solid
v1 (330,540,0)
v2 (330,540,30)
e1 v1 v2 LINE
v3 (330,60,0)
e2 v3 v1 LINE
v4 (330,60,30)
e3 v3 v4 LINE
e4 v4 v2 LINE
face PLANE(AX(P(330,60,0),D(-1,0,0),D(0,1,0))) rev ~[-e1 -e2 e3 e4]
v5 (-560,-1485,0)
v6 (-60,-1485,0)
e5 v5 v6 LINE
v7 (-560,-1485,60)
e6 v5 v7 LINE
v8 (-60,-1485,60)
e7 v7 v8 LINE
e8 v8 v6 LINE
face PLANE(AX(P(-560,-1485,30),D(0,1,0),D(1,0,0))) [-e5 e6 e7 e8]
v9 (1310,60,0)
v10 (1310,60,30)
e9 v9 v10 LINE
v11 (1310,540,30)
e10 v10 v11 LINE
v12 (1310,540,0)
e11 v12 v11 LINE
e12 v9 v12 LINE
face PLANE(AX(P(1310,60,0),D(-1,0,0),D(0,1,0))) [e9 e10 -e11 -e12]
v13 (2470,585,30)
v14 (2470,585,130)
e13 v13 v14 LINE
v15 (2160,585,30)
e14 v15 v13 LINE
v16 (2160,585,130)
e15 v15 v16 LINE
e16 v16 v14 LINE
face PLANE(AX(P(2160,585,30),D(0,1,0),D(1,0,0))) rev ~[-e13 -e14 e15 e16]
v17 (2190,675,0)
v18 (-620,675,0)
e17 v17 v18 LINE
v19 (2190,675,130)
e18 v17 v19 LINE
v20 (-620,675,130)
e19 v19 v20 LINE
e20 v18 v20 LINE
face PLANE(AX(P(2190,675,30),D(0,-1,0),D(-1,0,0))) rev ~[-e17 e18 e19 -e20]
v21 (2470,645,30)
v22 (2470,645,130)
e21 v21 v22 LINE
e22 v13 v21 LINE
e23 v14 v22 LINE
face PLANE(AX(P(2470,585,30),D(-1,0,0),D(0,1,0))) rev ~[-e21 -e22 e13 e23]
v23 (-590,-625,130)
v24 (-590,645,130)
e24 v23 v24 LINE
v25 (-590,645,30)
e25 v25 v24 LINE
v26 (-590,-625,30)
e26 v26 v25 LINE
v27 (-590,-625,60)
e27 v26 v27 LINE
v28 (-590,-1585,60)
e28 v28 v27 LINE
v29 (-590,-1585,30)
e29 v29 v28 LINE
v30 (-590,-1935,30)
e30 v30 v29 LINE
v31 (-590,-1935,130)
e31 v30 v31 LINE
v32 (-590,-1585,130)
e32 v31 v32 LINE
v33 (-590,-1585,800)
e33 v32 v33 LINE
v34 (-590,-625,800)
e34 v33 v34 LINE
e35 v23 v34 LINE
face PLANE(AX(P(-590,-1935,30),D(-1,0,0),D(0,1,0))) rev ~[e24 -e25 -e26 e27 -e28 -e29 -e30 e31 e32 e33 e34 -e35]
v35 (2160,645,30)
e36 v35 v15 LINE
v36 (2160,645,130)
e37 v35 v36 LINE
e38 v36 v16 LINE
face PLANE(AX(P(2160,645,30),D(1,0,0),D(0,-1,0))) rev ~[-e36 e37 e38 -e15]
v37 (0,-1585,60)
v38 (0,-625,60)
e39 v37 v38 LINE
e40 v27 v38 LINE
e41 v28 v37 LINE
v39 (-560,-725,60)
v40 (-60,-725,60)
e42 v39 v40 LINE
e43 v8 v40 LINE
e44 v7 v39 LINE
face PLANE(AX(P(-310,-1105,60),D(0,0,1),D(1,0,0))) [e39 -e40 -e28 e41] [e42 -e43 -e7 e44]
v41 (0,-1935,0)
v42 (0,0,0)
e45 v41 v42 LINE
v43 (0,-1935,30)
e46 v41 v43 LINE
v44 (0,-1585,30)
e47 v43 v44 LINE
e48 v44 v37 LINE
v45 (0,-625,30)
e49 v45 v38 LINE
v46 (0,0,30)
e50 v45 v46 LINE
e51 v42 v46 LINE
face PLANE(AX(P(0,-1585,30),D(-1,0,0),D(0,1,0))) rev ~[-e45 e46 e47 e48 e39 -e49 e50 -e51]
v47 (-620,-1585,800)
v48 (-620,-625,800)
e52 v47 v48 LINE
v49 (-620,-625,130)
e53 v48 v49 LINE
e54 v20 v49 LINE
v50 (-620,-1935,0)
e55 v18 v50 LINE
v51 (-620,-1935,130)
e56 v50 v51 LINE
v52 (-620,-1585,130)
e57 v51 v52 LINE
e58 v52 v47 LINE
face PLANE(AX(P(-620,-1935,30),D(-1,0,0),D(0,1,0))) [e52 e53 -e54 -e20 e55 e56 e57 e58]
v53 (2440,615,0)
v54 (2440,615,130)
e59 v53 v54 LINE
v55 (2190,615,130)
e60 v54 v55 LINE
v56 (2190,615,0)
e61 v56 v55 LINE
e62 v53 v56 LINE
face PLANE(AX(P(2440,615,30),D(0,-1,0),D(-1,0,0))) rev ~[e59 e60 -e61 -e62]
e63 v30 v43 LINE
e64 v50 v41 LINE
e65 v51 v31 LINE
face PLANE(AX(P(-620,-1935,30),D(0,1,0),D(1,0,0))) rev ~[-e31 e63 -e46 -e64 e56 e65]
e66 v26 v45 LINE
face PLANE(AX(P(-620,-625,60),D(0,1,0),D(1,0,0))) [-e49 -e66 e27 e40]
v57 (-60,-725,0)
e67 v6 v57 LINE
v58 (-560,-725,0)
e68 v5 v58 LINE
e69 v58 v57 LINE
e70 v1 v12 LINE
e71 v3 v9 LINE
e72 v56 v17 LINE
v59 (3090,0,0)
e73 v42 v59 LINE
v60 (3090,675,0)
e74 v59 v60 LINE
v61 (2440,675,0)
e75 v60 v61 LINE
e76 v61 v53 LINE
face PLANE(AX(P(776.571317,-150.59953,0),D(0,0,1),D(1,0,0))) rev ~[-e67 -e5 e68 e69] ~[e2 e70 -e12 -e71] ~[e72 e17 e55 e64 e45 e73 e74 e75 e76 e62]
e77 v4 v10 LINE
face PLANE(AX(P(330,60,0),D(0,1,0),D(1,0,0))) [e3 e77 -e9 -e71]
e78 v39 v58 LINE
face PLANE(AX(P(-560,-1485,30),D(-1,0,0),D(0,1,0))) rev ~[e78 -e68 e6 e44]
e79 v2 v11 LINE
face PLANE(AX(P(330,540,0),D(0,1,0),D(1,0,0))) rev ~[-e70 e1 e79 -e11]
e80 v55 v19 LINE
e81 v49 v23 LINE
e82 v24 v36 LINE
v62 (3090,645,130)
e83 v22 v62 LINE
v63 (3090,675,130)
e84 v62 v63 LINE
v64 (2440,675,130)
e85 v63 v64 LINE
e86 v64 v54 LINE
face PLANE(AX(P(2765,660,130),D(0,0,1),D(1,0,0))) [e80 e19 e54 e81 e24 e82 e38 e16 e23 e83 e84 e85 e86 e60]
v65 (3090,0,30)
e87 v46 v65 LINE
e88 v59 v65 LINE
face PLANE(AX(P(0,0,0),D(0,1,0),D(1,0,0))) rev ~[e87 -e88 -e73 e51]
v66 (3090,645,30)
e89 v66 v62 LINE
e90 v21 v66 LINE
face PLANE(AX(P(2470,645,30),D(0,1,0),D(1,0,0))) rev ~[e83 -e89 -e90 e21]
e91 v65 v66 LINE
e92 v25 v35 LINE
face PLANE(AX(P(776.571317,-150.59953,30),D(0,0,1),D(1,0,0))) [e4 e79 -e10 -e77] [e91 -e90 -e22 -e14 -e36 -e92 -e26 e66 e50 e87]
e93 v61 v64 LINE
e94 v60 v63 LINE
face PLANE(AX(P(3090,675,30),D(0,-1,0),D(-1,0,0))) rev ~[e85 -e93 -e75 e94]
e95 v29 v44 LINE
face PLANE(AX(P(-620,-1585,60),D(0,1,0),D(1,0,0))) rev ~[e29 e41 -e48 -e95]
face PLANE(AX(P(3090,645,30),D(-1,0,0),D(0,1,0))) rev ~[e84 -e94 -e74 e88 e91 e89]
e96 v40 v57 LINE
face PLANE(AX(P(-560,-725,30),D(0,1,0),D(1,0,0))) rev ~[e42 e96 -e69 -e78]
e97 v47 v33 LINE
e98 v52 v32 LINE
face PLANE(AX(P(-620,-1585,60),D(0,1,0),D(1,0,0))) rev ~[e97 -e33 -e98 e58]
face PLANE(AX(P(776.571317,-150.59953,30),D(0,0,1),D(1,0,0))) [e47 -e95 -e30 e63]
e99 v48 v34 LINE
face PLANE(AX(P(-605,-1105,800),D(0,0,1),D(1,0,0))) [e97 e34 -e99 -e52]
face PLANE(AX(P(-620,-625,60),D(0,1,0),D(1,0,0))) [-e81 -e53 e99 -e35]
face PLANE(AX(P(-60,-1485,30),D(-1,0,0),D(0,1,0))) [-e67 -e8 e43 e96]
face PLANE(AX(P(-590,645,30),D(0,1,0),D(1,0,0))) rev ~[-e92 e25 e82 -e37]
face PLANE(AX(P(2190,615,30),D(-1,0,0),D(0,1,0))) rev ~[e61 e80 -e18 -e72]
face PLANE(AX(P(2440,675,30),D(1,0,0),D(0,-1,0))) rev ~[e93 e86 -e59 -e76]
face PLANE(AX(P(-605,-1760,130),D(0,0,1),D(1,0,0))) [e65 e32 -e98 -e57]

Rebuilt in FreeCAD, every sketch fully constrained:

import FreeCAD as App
import Part
import Sketcher
from FreeCAD import Vector
Q = App.Units.Quantity

doc = App.newDocument("Part")
body = doc.addObject("PartDesign::Body", "Body")

# Sketch on XY plane
sketch1 = doc.addObject("Sketcher::SketchObject", "Sketch")
body.addObject(sketch1)
sketch1.AttachmentSupport = (doc.XY_Plane, [""])
sketch1.MapMode = "FlatFace"
sketch1.addGeometry(Part.LineSegment(Vector(0, -1935, 0), Vector(0, 0, 0)), False)
sketch1.addGeometry(Part.LineSegment(Vector(0, 0, 0), Vector(3090, 0, 0)), False)
sketch1.addGeometry(Part.LineSegment(Vector(3090, 0, 0), Vector(3090, 675, 0)), False)
sketch1.addGeometry(Part.LineSegment(Vector(3090, 675, 0), Vector(2440, 675, 0)), False)
sketch1.addGeometry(Part.LineSegment(Vector(2440, 675, 0), Vector(2440, 615, 0)), False)
sketch1.addGeometry(Part.LineSegment(Vector(2440, 615, 0), Vector(2190, 615, 0)), False)
sketch1.addGeometry(Part.LineSegment(Vector(2190, 615, 0), Vector(2190, 675, 0)), False)
sketch1.addGeometry(Part.LineSegment(Vector(2190, 675, 0), Vector(-620, 675, 0)), False)
sketch1.addGeometry(Part.LineSegment(Vector(-620, 675, 0), Vector(-620, -1935, 0)), False)
sketch1.addGeometry(Part.LineSegment(Vector(-620, -1935, 0), Vector(0, -1935, 0)), False)
sketch1.addGeometry(Part.LineSegment(Vector(-60, -1485, 0), Vector(-560, -1485, 0)), False)
sketch1.addGeometry(Part.LineSegment(Vector(-560, -1485, 0), Vector(-560, -725, 0)), False)
sketch1.addGeometry(Part.LineSegment(Vector(-560, -725, 0), Vector(-60, -725, 0)), False)
sketch1.addGeometry(Part.LineSegment(Vector(-60, -725, 0), Vector(-60, -1485, 0)), False)
sketch1.addGeometry(Part.LineSegment(Vector(1310, 60, 0), Vector(330, 60, 0)), False)
sketch1.addGeometry(Part.LineSegment(Vector(330, 60, 0), Vector(330, 540, 0)), False)
sketch1.addGeometry(Part.LineSegment(Vector(330, 540, 0), Vector(1310, 540, 0)), False)
sketch1.addGeometry(Part.LineSegment(Vector(1310, 540, 0), Vector(1310, 60, 0)), False)
sketch1.addConstraint(Sketcher.Constraint("Coincident", 0, 2, 1, 1))
sketch1.addConstraint(Sketcher.Constraint("Coincident", 1, 2, 2, 1))
sketch1.addConstraint(Sketcher.Constraint("Coincident", 2, 2, 3, 1))
sketch1.addConstraint(Sketcher.Constraint("Coincident", 3, 2, 4, 1))
sketch1.addConstraint(Sketcher.Constraint("Coincident", 4, 2, 5, 1))
sketch1.addConstraint(Sketcher.Constraint("Coincident", 5, 2, 6, 1))
sketch1.addConstraint(Sketcher.Constraint("Coincident", 6, 2, 7, 1))
sketch1.addConstraint(Sketcher.Constraint("Coincident", 7, 2, 8, 1))
sketch1.addConstraint(Sketcher.Constraint("Coincident", 8, 2, 9, 1))
sketch1.addConstraint(Sketcher.Constraint("Coincident", 9, 2, 0, 1))
sketch1.addConstraint(Sketcher.Constraint("Coincident", 10, 2, 11, 1))
sketch1.addConstraint(Sketcher.Constraint("Coincident", 11, 2, 12, 1))
sketch1.addConstraint(Sketcher.Constraint("Coincident", 12, 2, 13, 1))
sketch1.addConstraint(Sketcher.Constraint("Coincident", 13, 2, 10, 1))
sketch1.addConstraint(Sketcher.Constraint("Coincident", 14, 2, 15, 1))
sketch1.addConstraint(Sketcher.Constraint("Coincident", 15, 2, 16, 1))
sketch1.addConstraint(Sketcher.Constraint("Coincident", 16, 2, 17, 1))
sketch1.addConstraint(Sketcher.Constraint("Coincident", 17, 2, 14, 1))
sketch1.addConstraint(Sketcher.Constraint("Vertical", 0))
sketch1.addConstraint(Sketcher.Constraint("Horizontal", 1))
sketch1.addConstraint(Sketcher.Constraint("Vertical", 2))
sketch1.addConstraint(Sketcher.Constraint("Horizontal", 3))
sketch1.addConstraint(Sketcher.Constraint("Vertical", 4))
sketch1.addConstraint(Sketcher.Constraint("Horizontal", 5))
sketch1.addConstraint(Sketcher.Constraint("Vertical", 6))
sketch1.addConstraint(Sketcher.Constraint("Horizontal", 7))
sketch1.addConstraint(Sketcher.Constraint("Vertical", 8))
sketch1.addConstraint(Sketcher.Constraint("Horizontal", 9))
sketch1.addConstraint(Sketcher.Constraint("Horizontal", 10))
sketch1.addConstraint(Sketcher.Constraint("Vertical", 11))
sketch1.addConstraint(Sketcher.Constraint("Horizontal", 12))
sketch1.addConstraint(Sketcher.Constraint("Vertical", 13))
sketch1.addConstraint(Sketcher.Constraint("Horizontal", 14))
sketch1.addConstraint(Sketcher.Constraint("Vertical", 15))
sketch1.addConstraint(Sketcher.Constraint("Horizontal", 16))
sketch1.addConstraint(Sketcher.Constraint("Vertical", 17))
sketch1.addConstraint(Sketcher.Constraint("Coincident", 0, 2, -1, 1))
sketch1.addConstraint(Sketcher.Constraint("Horizontal", 3, 2, 6, 2))
sketch1.addConstraint(Sketcher.Constraint("DistanceX", 1, 1, 1, 2, Q("3090 mm")))
sketch1.addConstraint(Sketcher.Constraint("DistanceX", 3, 2, 3, 1, Q("650 mm")))
sketch1.addConstraint(Sketcher.Constraint("DistanceX", 5, 2, 5, 1, Q("250 mm")))
sketch1.addConstraint(Sketcher.Constraint("DistanceX", 7, 2, 7, 1, Q("2810 mm")))
sketch1.addConstraint(Sketcher.Constraint("DistanceX", 10, 2, 10, 1, Q("500 mm")))
sketch1.addConstraint(Sketcher.Constraint("DistanceX", 14, 2, 14, 1, Q("980 mm")))
sketch1.addConstraint(Sketcher.Constraint("DistanceY", 0, 1, 0, 2, Q("1935 mm")))
sketch1.addConstraint(Sketcher.Constraint("DistanceY", 2, 1, 2, 2, Q("675 mm")))
sketch1.addConstraint(Sketcher.Constraint("DistanceY", 4, 2, 4, 1, Q("60 mm")))
sketch1.addConstraint(Sketcher.Constraint("DistanceY", 11, 1, 11, 2, Q("760 mm")))
sketch1.addConstraint(Sketcher.Constraint("DistanceY", 15, 1, 15, 2, Q("480 mm")))
sketch1.addConstraint(Sketcher.Constraint("DistanceX", 10, 2, -1, 1, Q("560 mm")))
sketch1.addConstraint(Sketcher.Constraint("DistanceY", 10, 2, -1, 1, Q("1485 mm")))
sketch1.addConstraint(Sketcher.Constraint("DistanceX", -1, 1, 14, 2, Q("330 mm")))
sketch1.addConstraint(Sketcher.Constraint("DistanceY", -1, 1, 14, 2, Q("60 mm")))
pad1 = doc.addObject("PartDesign::Pad", "Pad")
body.addObject(pad1)
pad1.Profile = sketch1
pad1.Length = 30

# Sketch on XY plane
sketch2 = doc.addObject("Sketcher::SketchObject", "Sketch001")
body.addObject(sketch2)
sketch2.AttachmentSupport = (doc.XY_Plane, [""])
sketch2.MapMode = "FlatFace"
sketch2.AttachmentOffset = App.Placement(Vector(0, 0, 30), App.Rotation())
sketch2.addGeometry(Part.LineSegment(Vector(-620, -625, 0), Vector(-620, -1585, 0)), False)
sketch2.addGeometry(Part.LineSegment(Vector(-620, -1585, 0), Vector(0, -1585, 0)), False)
sketch2.addGeometry(Part.LineSegment(Vector(0, -1585, 0), Vector(0, -625, 0)), False)
sketch2.addGeometry(Part.LineSegment(Vector(0, -625, 0), Vector(-620, -625, 0)), False)
sketch2.addGeometry(Part.LineSegment(Vector(-60, -1485, 0), Vector(-560, -1485, 0)), False)
sketch2.addGeometry(Part.LineSegment(Vector(-560, -1485, 0), Vector(-560, -725, 0)), False)
sketch2.addGeometry(Part.LineSegment(Vector(-560, -725, 0), Vector(-60, -725, 0)), False)
sketch2.addGeometry(Part.LineSegment(Vector(-60, -725, 0), Vector(-60, -1485, 0)), False)
sketch2.addConstraint(Sketcher.Constraint("Coincident", 0, 2, 1, 1))
sketch2.addConstraint(Sketcher.Constraint("Coincident", 1, 2, 2, 1))
sketch2.addConstraint(Sketcher.Constraint("Coincident", 2, 2, 3, 1))
sketch2.addConstraint(Sketcher.Constraint("Coincident", 3, 2, 0, 1))
sketch2.addConstraint(Sketcher.Constraint("Coincident", 4, 2, 5, 1))
sketch2.addConstraint(Sketcher.Constraint("Coincident", 5, 2, 6, 1))
sketch2.addConstraint(Sketcher.Constraint("Coincident", 6, 2, 7, 1))
sketch2.addConstraint(Sketcher.Constraint("Coincident", 7, 2, 4, 1))
sketch2.addConstraint(Sketcher.Constraint("Vertical", 0))
sketch2.addConstraint(Sketcher.Constraint("Horizontal", 1))
sketch2.addConstraint(Sketcher.Constraint("Vertical", 2))
sketch2.addConstraint(Sketcher.Constraint("Horizontal", 3))
sketch2.addConstraint(Sketcher.Constraint("Horizontal", 4))
sketch2.addConstraint(Sketcher.Constraint("Vertical", 5))
sketch2.addConstraint(Sketcher.Constraint("Horizontal", 6))
sketch2.addConstraint(Sketcher.Constraint("Vertical", 7))
sketch2.addConstraint(Sketcher.Constraint("PointOnObject", 1, 2, -2))
sketch2.addConstraint(Sketcher.Constraint("DistanceX", 1, 1, 1, 2, Q("620 mm")))
sketch2.addConstraint(Sketcher.Constraint("DistanceX", 4, 2, 4, 1, Q("500 mm")))
sketch2.addConstraint(Sketcher.Constraint("DistanceY", 0, 2, 0, 1, Q("960 mm")))
sketch2.addConstraint(Sketcher.Constraint("DistanceY", 5, 1, 5, 2, Q("760 mm")))
sketch2.addConstraint(Sketcher.Constraint("DistanceY", 0, 2, -1, 1, Q("1585 mm")))
sketch2.addConstraint(Sketcher.Constraint("DistanceX", 4, 2, -1, 1, Q("560 mm")))
sketch2.addConstraint(Sketcher.Constraint("DistanceY", 4, 2, -1, 1, Q("1485 mm")))
pad2 = doc.addObject("PartDesign::Pad", "Pad001")
body.addObject(pad2)
pad2.Profile = sketch2
pad2.Length = 30

# Sketch on XY plane
sketch3 = doc.addObject("Sketcher::SketchObject", "Sketch002")
body.addObject(sketch3)
sketch3.AttachmentSupport = (doc.XY_Plane, [""])
sketch3.MapMode = "FlatFace"
sketch3.AttachmentOffset = App.Placement(Vector(0, 0, 60), App.Rotation())
sketch3.addGeometry(Part.LineSegment(Vector(-620, -625, 0), Vector(-620, -1585, 0)), False)
sketch3.addGeometry(Part.LineSegment(Vector(-620, -1585, 0), Vector(-590, -1585, 0)), False)
sketch3.addGeometry(Part.LineSegment(Vector(-590, -1585, 0), Vector(-590, -625, 0)), False)
sketch3.addGeometry(Part.LineSegment(Vector(-590, -625, 0), Vector(-620, -625, 0)), False)
sketch3.addConstraint(Sketcher.Constraint("Coincident", 0, 2, 1, 1))
sketch3.addConstraint(Sketcher.Constraint("Coincident", 1, 2, 2, 1))
sketch3.addConstraint(Sketcher.Constraint("Coincident", 2, 2, 3, 1))
sketch3.addConstraint(Sketcher.Constraint("Coincident", 3, 2, 0, 1))
sketch3.addConstraint(Sketcher.Constraint("Vertical", 0))
sketch3.addConstraint(Sketcher.Constraint("Horizontal", 1))
sketch3.addConstraint(Sketcher.Constraint("Vertical", 2))
sketch3.addConstraint(Sketcher.Constraint("Horizontal", 3))
sketch3.addConstraint(Sketcher.Constraint("DistanceX", 1, 1, 1, 2, Q("30 mm")))
sketch3.addConstraint(Sketcher.Constraint("DistanceY", 0, 2, 0, 1, Q("960 mm")))
sketch3.addConstraint(Sketcher.Constraint("DistanceX", 0, 2, -1, 1, Q("620 mm")))
sketch3.addConstraint(Sketcher.Constraint("DistanceY", 0, 2, -1, 1, Q("1585 mm")))
pad3 = doc.addObject("PartDesign::Pad", "Pad002")
body.addObject(pad3)
pad3.Profile = sketch3
pad3.Length = 740

# Sketch on XY plane
sketch4 = doc.addObject("Sketcher::SketchObject", "Sketch003")
body.addObject(sketch4)
sketch4.AttachmentSupport = (doc.XY_Plane, [""])
sketch4.MapMode = "FlatFace"
sketch4.AttachmentOffset = App.Placement(Vector(0, 0, 30), App.Rotation())
sketch4.addGeometry(Part.LineSegment(Vector(3090, 645, 0), Vector(3090, 675, 0)), False)
sketch4.addGeometry(Part.LineSegment(Vector(3090, 675, 0), Vector(2440, 675, 0)), False)
sketch4.addGeometry(Part.LineSegment(Vector(2440, 675, 0), Vector(2440, 615, 0)), False)
sketch4.addGeometry(Part.LineSegment(Vector(2440, 615, 0), Vector(2190, 615, 0)), False)
sketch4.addGeometry(Part.LineSegment(Vector(2190, 615, 0), Vector(2190, 675, 0)), False)
sketch4.addGeometry(Part.LineSegment(Vector(2190, 675, 0), Vector(-620, 675, 0)), False)
sketch4.addGeometry(Part.LineSegment(Vector(-620, 675, 0), Vector(-620, -625, 0)), False)
sketch4.addGeometry(Part.LineSegment(Vector(-620, -625, 0), Vector(-590, -625, 0)), False)
sketch4.addGeometry(Part.LineSegment(Vector(-590, -625, 0), Vector(-590, 645, 0)), False)
sketch4.addGeometry(Part.LineSegment(Vector(-590, 645, 0), Vector(2160, 645, 0)), False)
sketch4.addGeometry(Part.LineSegment(Vector(2160, 645, 0), Vector(2160, 585, 0)), False)
sketch4.addGeometry(Part.LineSegment(Vector(2160, 585, 0), Vector(2470, 585, 0)), False)
sketch4.addGeometry(Part.LineSegment(Vector(2470, 585, 0), Vector(2470, 645, 0)), False)
sketch4.addGeometry(Part.LineSegment(Vector(2470, 645, 0), Vector(3090, 645, 0)), False)
sketch4.addConstraint(Sketcher.Constraint("Coincident", 0, 2, 1, 1))
sketch4.addConstraint(Sketcher.Constraint("Coincident", 1, 2, 2, 1))
sketch4.addConstraint(Sketcher.Constraint("Coincident", 2, 2, 3, 1))
sketch4.addConstraint(Sketcher.Constraint("Coincident", 3, 2, 4, 1))
sketch4.addConstraint(Sketcher.Constraint("Coincident", 4, 2, 5, 1))
sketch4.addConstraint(Sketcher.Constraint("Coincident", 5, 2, 6, 1))
sketch4.addConstraint(Sketcher.Constraint("Coincident", 6, 2, 7, 1))
sketch4.addConstraint(Sketcher.Constraint("Coincident", 7, 2, 8, 1))
sketch4.addConstraint(Sketcher.Constraint("Coincident", 8, 2, 9, 1))
sketch4.addConstraint(Sketcher.Constraint("Coincident", 9, 2, 10, 1))
sketch4.addConstraint(Sketcher.Constraint("Coincident", 10, 2, 11, 1))
sketch4.addConstraint(Sketcher.Constraint("Coincident", 11, 2, 12, 1))
sketch4.addConstraint(Sketcher.Constraint("Coincident", 12, 2, 13, 1))
sketch4.addConstraint(Sketcher.Constraint("Coincident", 13, 2, 0, 1))
sketch4.addConstraint(Sketcher.Constraint("Vertical", 0))
sketch4.addConstraint(Sketcher.Constraint("Horizontal", 1))
sketch4.addConstraint(Sketcher.Constraint("Vertical", 2))
sketch4.addConstraint(Sketcher.Constraint("Horizontal", 3))
sketch4.addConstraint(Sketcher.Constraint("Vertical", 4))
sketch4.addConstraint(Sketcher.Constraint("Horizontal", 5))
sketch4.addConstraint(Sketcher.Constraint("Vertical", 6))
sketch4.addConstraint(Sketcher.Constraint("Horizontal", 7))
sketch4.addConstraint(Sketcher.Constraint("Vertical", 8))
sketch4.addConstraint(Sketcher.Constraint("Horizontal", 9))
sketch4.addConstraint(Sketcher.Constraint("Vertical", 10))
sketch4.addConstraint(Sketcher.Constraint("Horizontal", 11))
sketch4.addConstraint(Sketcher.Constraint("Vertical", 12))
sketch4.addConstraint(Sketcher.Constraint("Horizontal", 13))
sketch4.addConstraint(Sketcher.Constraint("Horizontal", 1, 2, 4, 2))
sketch4.addConstraint(Sketcher.Constraint("Horizontal", 9, 2, 12, 2))
sketch4.addConstraint(Sketcher.Constraint("Equal", 7, 0))
sketch4.addConstraint(Sketcher.Constraint("Equal", 4, 10))
sketch4.addConstraint(Sketcher.Constraint("DistanceX", 1, 2, 1, 1, Q("650 mm")))
sketch4.addConstraint(Sketcher.Constraint("DistanceX", 3, 2, 3, 1, Q("250 mm")))
sketch4.addConstraint(Sketcher.Constraint("DistanceX", 5, 2, 5, 1, Q("2810 mm")))
sketch4.addConstraint(Sketcher.Constraint("DistanceX", 7, 1, 7, 2, Q("30 mm")))
sketch4.addConstraint(Sketcher.Constraint("DistanceX", 9, 1, 9, 2, Q("2750 mm")))
sketch4.addConstraint(Sketcher.Constraint("DistanceX", 11, 1, 11, 2, Q("310 mm")))
sketch4.addConstraint(Sketcher.Constraint("DistanceY", 2, 2, 2, 1, Q("60 mm")))
sketch4.addConstraint(Sketcher.Constraint("DistanceY", 6, 2, 6, 1, Q("1300 mm")))
sketch4.addConstraint(Sketcher.Constraint("DistanceX", -1, 1, 0, 2, Q("3090 mm")))
sketch4.addConstraint(Sketcher.Constraint("DistanceY", -1, 1, 0, 2, Q("675 mm")))
pad4 = doc.addObject("PartDesign::Pad", "Pad003")
body.addObject(pad4)
pad4.Profile = sketch4
pad4.Length = 100

# Sketch on XY plane
sketch5 = doc.addObject("Sketcher::SketchObject", "Sketch004")
body.addObject(sketch5)
sketch5.AttachmentSupport = (doc.XY_Plane, [""])
sketch5.MapMode = "FlatFace"
sketch5.AttachmentOffset = App.Placement(Vector(0, 0, 30), App.Rotation())
sketch5.addGeometry(Part.LineSegment(Vector(-620, -1585, 0), Vector(-620, -1935, 0)), False)
sketch5.addGeometry(Part.LineSegment(Vector(-620, -1935, 0), Vector(-590, -1935, 0)), False)
sketch5.addGeometry(Part.LineSegment(Vector(-590, -1935, 0), Vector(-590, -1585, 0)), False)
sketch5.addGeometry(Part.LineSegment(Vector(-590, -1585, 0), Vector(-620, -1585, 0)), False)
sketch5.addConstraint(Sketcher.Constraint("Coincident", 0, 2, 1, 1))
sketch5.addConstraint(Sketcher.Constraint("Coincident", 1, 2, 2, 1))
sketch5.addConstraint(Sketcher.Constraint("Coincident", 2, 2, 3, 1))
sketch5.addConstraint(Sketcher.Constraint("Coincident", 3, 2, 0, 1))
sketch5.addConstraint(Sketcher.Constraint("Vertical", 0))
sketch5.addConstraint(Sketcher.Constraint("Horizontal", 1))
sketch5.addConstraint(Sketcher.Constraint("Vertical", 2))
sketch5.addConstraint(Sketcher.Constraint("Horizontal", 3))
sketch5.addConstraint(Sketcher.Constraint("DistanceX", 1, 1, 1, 2, Q("30 mm")))
sketch5.addConstraint(Sketcher.Constraint("DistanceY", 0, 2, 0, 1, Q("350 mm")))
sketch5.addConstraint(Sketcher.Constraint("DistanceX", 0, 2, -1, 1, Q("620 mm")))
sketch5.addConstraint(Sketcher.Constraint("DistanceY", 0, 2, -1, 1, Q("1935 mm")))
pad5 = doc.addObject("PartDesign::Pad", "Pad004")
body.addObject(pad5)
pad5.Profile = sketch5
pad5.Length = 100

doc.recompute()
